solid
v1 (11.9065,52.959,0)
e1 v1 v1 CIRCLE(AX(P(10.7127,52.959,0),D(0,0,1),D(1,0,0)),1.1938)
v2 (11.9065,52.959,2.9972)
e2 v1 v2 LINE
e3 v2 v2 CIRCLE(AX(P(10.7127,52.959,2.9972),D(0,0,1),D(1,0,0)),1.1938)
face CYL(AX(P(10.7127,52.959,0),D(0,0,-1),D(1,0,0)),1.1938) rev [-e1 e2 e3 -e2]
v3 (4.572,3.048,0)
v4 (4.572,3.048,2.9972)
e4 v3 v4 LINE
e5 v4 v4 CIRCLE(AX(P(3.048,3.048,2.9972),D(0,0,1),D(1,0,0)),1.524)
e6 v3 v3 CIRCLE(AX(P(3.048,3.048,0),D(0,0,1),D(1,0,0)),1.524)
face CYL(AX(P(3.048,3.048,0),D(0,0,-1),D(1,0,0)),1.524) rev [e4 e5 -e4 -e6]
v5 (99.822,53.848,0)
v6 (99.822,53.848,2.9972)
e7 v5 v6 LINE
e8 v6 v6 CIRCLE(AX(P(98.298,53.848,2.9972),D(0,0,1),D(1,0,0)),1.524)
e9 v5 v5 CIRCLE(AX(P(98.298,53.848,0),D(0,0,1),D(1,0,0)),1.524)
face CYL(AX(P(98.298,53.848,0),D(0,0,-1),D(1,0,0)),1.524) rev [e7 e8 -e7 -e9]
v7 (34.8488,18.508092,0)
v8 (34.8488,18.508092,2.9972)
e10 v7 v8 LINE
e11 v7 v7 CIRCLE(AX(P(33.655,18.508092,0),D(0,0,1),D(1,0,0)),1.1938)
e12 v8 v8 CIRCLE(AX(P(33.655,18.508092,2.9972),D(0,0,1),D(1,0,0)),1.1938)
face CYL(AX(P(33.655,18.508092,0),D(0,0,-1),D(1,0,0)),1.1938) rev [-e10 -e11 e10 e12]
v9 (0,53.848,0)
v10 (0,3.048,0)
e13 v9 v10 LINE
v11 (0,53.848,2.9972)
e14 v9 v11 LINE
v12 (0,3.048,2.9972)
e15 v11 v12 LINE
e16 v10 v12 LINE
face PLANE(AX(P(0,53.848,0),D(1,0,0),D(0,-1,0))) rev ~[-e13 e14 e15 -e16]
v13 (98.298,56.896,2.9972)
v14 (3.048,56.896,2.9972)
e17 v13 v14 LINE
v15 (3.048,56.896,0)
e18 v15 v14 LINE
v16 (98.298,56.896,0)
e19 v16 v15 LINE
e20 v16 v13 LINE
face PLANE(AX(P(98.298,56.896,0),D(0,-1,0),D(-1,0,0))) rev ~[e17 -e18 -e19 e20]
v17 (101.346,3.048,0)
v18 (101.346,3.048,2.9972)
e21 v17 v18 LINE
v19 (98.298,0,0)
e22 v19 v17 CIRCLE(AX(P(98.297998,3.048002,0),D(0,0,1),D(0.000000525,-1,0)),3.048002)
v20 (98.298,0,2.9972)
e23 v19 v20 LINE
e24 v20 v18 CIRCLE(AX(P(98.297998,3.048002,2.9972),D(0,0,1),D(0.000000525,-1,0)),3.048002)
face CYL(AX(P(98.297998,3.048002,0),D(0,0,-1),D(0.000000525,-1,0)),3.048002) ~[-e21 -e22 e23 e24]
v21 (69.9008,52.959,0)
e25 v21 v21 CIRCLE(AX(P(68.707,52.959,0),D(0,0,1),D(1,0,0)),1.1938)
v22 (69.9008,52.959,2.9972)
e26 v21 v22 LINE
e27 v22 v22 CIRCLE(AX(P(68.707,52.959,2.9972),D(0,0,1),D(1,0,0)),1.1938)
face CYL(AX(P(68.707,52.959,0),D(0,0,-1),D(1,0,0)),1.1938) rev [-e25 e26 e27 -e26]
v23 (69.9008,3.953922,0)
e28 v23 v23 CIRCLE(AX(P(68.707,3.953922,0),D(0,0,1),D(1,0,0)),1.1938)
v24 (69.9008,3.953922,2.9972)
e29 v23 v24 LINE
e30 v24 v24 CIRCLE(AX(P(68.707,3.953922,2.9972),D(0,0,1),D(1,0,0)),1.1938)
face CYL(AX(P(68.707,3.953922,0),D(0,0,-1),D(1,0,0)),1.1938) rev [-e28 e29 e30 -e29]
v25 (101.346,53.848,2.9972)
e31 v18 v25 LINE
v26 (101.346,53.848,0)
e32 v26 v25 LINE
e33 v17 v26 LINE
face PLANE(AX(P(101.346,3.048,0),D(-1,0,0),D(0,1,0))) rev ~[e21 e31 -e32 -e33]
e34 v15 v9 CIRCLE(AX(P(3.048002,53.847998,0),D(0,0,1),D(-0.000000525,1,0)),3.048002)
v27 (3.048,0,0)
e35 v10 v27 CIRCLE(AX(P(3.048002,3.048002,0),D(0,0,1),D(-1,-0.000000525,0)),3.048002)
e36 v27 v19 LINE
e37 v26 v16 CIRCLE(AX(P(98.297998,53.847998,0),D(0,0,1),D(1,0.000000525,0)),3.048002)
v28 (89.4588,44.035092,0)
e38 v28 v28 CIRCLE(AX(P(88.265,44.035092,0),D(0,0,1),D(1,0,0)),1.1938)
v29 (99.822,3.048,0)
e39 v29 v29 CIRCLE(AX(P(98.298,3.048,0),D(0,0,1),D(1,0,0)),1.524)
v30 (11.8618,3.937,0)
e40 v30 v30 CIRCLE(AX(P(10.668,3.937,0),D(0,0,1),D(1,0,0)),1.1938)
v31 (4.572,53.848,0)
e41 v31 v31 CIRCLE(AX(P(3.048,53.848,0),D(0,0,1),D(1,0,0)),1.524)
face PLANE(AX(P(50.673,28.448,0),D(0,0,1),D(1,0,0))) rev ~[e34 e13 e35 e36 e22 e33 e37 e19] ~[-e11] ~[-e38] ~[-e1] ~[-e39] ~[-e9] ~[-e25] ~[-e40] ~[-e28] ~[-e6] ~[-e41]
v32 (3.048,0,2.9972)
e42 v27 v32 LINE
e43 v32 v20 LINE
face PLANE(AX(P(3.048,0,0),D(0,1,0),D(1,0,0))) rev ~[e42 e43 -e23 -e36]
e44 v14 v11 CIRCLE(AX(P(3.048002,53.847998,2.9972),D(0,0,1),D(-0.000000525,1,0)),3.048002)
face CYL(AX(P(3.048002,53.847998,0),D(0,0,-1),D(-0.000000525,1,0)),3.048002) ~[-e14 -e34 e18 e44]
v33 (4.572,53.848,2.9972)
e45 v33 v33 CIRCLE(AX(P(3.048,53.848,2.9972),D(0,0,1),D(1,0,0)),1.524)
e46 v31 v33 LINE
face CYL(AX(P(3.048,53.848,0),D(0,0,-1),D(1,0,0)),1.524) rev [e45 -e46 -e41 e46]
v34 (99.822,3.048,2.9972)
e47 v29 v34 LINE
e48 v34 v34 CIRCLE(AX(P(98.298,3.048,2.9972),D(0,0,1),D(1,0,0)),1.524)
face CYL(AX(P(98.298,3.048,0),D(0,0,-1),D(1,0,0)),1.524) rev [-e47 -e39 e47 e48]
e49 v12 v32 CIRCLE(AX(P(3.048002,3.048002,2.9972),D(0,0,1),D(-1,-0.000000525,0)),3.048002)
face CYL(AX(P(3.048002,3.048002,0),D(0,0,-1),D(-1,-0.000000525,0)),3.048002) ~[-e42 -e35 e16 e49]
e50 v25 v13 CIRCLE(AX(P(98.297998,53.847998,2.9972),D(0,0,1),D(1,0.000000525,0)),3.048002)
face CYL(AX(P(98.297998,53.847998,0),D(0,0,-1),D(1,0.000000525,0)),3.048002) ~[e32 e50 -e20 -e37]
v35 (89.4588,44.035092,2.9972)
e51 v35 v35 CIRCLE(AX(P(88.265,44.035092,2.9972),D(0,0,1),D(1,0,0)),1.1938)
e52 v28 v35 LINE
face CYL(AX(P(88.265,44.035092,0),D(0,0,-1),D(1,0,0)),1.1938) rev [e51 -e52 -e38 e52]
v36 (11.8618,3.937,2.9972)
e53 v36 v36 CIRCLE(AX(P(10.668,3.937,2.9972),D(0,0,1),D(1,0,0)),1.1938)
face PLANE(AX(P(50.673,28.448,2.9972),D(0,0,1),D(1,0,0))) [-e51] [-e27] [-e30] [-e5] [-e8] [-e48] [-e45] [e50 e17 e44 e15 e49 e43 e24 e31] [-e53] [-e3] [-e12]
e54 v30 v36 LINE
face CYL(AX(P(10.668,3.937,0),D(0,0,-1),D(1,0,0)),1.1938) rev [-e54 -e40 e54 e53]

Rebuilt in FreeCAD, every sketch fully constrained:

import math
import FreeCAD as App
import Part
import Sketcher

V = App.Vector
Q = App.Units.Quantity

doc = App.newDocument("Part")
params = doc.addObject("Spreadsheet::Sheet", "Params")
for row, (alias, value) in enumerate([
    ("sketch1_diameter", "0.12 in"),
    ("sketch1_height", "2 in"),
    ("sketch1_radius", "0.1200001 in"),
    ("sketch1_diameter2", "0.094 in"),
    ("sketch1_width", "3.75 in"),
    ("pad1_length", "0.118 in"),
], start=1):
    params.set(f"A{row}", alias)
    params.set(f"B{row}", "=" + value)
    params.setAlias(f"B{row}", alias)

body = doc.addObject("PartDesign::Body", "Body")

sketch1 = body.newObject("Sketcher::SketchObject", "Sketch")
sketch1.AttachmentSupport = (doc.getObject("XY_Plane"), [""])
sketch1.MapMode = "FlatFace"
sketch1.addGeometry([
    Part.ArcOfCircle(Part.Circle(V(3, 3, 0), V(0, 0, 1), 3), math.radians(-180), math.radians(-90)),
    Part.LineSegment(V(3, 0, 0), V(98.3, 0, 0)),
    Part.ArcOfCircle(Part.Circle(V(98.3, 3, 0), V(0, 0, 1), 3), math.radians(-90), math.radians(0)),
    Part.LineSegment(V(101.3, 3, 0), V(101.3, 53.8, 0)),
    Part.ArcOfCircle(Part.Circle(V(98.3, 53.8, 0), V(0, 0, 1), 3), math.radians(0), math.radians(90)),
    Part.LineSegment(V(98.3, 56.9, 0), V(3, 56.9, 0)),
    Part.ArcOfCircle(Part.Circle(V(3, 53.8, 0), V(0, 0, 1), 3), math.radians(90), math.radians(180)),
    Part.LineSegment(V(0, 53.8, 0), V(0, 3, 0)),
    Part.Circle(V(3, 3, 0), V(0, 0, 1), 1.5),
    Part.Circle(V(10.7, 3.9, 0), V(0, 0, 1), 1.2),
    Part.Circle(V(33.7, 18.5, 0), V(0, 0, 1), 1.2),
    Part.Circle(V(68.7, 4, 0), V(0, 0, 1), 1.2),
    Part.Circle(V(98.3, 3, 0), V(0, 0, 1), 1.5),
    Part.Circle(V(3, 53.8, 0), V(0, 0, 1), 1.5),
    Part.Circle(V(10.7, 53, 0), V(0, 0, 1), 1.2),
    Part.Circle(V(68.7, 53, 0), V(0, 0, 1), 1.2),
    Part.Circle(V(88.3, 44, 0), V(0, 0, 1), 1.2),
    Part.Circle(V(98.3, 53.8, 0), V(0, 0, 1), 1.5),
], False)
sketch1.addConstraint([
    Sketcher.Constraint("Tangent", 0, 2, 1, 1),
    Sketcher.Constraint("Tangent", 1, 2, 2, 1),
    Sketcher.Constraint("Tangent", 2, 2, 3, 1),
    Sketcher.Constraint("Tangent", 3, 2, 4, 1),
    Sketcher.Constraint("Tangent", 4, 2, 5, 1),
    Sketcher.Constraint("Tangent", 5, 2, 6, 1),
    Sketcher.Constraint("Tangent", 6, 2, 7, 1),
    Sketcher.Constraint("Tangent", 7, 2, 0, 1),
    Sketcher.Constraint("Horizontal", 1),
    Sketcher.Constraint("Vertical", 3),
    Sketcher.Constraint("Horizontal", 5),
    Sketcher.Constraint("Vertical", 7),
    Sketcher.Constraint("Coincident", 8, 3, 0, 3),
    Sketcher.Constraint("Coincident", 12, 3, 2, 3),
    Sketcher.Constraint("Coincident", 13, 3, 6, 3),
    Sketcher.Constraint("Coincident", 17, 3, 4, 3),
    Sketcher.Constraint("Equal", 0, 2),
    Sketcher.Constraint("Equal", 2, 4),
    Sketcher.Constraint("Equal", 4, 6),
    Sketcher.Constraint("Equal", 9, 10),
    Sketcher.Constraint("Equal", 10, 11),
    Sketcher.Constraint("Equal", 8, 12),
    Sketcher.Constraint("Equal", 12, 13),
    Sketcher.Constraint("Equal", 11, 14),
    Sketcher.Constraint("Equal", 14, 15),
    Sketcher.Constraint("Equal", 15, 16),
    Sketcher.Constraint("Equal", 13, 17),
    Sketcher.Constraint("PointOnObject", 0, 2, -1),
    Sketcher.Constraint("PointOnObject", 6, 2, -2),
    Sketcher.Constraint("Horizontal", 14, 3, 15, 3),
    Sketcher.Constraint("Vertical", 11, 3, 15, 3),
    Sketcher.Constraint("Diameter", 8, Q("0.12 in")),
    Sketcher.Constraint("DistanceY", 3, 1, 3, 2, Q("2 in")),
    Sketcher.Constraint("Radius", 0, Q("0.1200001 in")),
    Sketcher.Constraint("Diameter", 9, Q("0.094 in")),
    Sketcher.Constraint("DistanceX", 1, 1, 1, 2, Q("3.75 in")),
    Sketcher.Constraint("DistanceX", 0, 3, 9, 3, Q("0.2999999 in")),
    Sketcher.Constraint("DistanceX", 10, 3, 11, 3, Q("1.38 in")),
    Sketcher.Constraint("DistanceY", 9, 3, 14, 3, Q("1.93 in")),
    Sketcher.Constraint("DistanceX", 15, 3, 16, 3, Q("0.77 in")),
    Sketcher.Constraint("DistanceY", -1, 1, 9, 3, Q("0.155 in")),
    Sketcher.Constraint("DistanceX", -1, 1, 10, 3, Q("1.325 in")),
    Sketcher.Constraint("DistanceX", -1, 1, 14, 3, Q("10.7127 mm")),
    Sketcher.Constraint("DistanceY", -1, 1, 11, 3, Q("3.953922 mm")),
    Sketcher.Constraint("DistanceY", 0, 3, 10, 3, Q("15.46009 mm")),
    Sketcher.Constraint("DistanceY", 16, 3, 15, 3, Q("8.923908 mm")),
])
sketch1.setExpression("Constraints[31]", "Params.sketch1_diameter")
sketch1.setExpression("Constraints[32]", "Params.sketch1_height")
sketch1.setExpression("Constraints[33]", "Params.sketch1_radius")
sketch1.setExpression("Constraints[34]", "Params.sketch1_diameter2")
sketch1.setExpression("Constraints[35]", "Params.sketch1_width")
pad1 = body.newObject("PartDesign::Pad", "Pad")
pad1.Profile = sketch1
pad1.setExpression("Length", "Params.pad1_length")

doc.recompute()
